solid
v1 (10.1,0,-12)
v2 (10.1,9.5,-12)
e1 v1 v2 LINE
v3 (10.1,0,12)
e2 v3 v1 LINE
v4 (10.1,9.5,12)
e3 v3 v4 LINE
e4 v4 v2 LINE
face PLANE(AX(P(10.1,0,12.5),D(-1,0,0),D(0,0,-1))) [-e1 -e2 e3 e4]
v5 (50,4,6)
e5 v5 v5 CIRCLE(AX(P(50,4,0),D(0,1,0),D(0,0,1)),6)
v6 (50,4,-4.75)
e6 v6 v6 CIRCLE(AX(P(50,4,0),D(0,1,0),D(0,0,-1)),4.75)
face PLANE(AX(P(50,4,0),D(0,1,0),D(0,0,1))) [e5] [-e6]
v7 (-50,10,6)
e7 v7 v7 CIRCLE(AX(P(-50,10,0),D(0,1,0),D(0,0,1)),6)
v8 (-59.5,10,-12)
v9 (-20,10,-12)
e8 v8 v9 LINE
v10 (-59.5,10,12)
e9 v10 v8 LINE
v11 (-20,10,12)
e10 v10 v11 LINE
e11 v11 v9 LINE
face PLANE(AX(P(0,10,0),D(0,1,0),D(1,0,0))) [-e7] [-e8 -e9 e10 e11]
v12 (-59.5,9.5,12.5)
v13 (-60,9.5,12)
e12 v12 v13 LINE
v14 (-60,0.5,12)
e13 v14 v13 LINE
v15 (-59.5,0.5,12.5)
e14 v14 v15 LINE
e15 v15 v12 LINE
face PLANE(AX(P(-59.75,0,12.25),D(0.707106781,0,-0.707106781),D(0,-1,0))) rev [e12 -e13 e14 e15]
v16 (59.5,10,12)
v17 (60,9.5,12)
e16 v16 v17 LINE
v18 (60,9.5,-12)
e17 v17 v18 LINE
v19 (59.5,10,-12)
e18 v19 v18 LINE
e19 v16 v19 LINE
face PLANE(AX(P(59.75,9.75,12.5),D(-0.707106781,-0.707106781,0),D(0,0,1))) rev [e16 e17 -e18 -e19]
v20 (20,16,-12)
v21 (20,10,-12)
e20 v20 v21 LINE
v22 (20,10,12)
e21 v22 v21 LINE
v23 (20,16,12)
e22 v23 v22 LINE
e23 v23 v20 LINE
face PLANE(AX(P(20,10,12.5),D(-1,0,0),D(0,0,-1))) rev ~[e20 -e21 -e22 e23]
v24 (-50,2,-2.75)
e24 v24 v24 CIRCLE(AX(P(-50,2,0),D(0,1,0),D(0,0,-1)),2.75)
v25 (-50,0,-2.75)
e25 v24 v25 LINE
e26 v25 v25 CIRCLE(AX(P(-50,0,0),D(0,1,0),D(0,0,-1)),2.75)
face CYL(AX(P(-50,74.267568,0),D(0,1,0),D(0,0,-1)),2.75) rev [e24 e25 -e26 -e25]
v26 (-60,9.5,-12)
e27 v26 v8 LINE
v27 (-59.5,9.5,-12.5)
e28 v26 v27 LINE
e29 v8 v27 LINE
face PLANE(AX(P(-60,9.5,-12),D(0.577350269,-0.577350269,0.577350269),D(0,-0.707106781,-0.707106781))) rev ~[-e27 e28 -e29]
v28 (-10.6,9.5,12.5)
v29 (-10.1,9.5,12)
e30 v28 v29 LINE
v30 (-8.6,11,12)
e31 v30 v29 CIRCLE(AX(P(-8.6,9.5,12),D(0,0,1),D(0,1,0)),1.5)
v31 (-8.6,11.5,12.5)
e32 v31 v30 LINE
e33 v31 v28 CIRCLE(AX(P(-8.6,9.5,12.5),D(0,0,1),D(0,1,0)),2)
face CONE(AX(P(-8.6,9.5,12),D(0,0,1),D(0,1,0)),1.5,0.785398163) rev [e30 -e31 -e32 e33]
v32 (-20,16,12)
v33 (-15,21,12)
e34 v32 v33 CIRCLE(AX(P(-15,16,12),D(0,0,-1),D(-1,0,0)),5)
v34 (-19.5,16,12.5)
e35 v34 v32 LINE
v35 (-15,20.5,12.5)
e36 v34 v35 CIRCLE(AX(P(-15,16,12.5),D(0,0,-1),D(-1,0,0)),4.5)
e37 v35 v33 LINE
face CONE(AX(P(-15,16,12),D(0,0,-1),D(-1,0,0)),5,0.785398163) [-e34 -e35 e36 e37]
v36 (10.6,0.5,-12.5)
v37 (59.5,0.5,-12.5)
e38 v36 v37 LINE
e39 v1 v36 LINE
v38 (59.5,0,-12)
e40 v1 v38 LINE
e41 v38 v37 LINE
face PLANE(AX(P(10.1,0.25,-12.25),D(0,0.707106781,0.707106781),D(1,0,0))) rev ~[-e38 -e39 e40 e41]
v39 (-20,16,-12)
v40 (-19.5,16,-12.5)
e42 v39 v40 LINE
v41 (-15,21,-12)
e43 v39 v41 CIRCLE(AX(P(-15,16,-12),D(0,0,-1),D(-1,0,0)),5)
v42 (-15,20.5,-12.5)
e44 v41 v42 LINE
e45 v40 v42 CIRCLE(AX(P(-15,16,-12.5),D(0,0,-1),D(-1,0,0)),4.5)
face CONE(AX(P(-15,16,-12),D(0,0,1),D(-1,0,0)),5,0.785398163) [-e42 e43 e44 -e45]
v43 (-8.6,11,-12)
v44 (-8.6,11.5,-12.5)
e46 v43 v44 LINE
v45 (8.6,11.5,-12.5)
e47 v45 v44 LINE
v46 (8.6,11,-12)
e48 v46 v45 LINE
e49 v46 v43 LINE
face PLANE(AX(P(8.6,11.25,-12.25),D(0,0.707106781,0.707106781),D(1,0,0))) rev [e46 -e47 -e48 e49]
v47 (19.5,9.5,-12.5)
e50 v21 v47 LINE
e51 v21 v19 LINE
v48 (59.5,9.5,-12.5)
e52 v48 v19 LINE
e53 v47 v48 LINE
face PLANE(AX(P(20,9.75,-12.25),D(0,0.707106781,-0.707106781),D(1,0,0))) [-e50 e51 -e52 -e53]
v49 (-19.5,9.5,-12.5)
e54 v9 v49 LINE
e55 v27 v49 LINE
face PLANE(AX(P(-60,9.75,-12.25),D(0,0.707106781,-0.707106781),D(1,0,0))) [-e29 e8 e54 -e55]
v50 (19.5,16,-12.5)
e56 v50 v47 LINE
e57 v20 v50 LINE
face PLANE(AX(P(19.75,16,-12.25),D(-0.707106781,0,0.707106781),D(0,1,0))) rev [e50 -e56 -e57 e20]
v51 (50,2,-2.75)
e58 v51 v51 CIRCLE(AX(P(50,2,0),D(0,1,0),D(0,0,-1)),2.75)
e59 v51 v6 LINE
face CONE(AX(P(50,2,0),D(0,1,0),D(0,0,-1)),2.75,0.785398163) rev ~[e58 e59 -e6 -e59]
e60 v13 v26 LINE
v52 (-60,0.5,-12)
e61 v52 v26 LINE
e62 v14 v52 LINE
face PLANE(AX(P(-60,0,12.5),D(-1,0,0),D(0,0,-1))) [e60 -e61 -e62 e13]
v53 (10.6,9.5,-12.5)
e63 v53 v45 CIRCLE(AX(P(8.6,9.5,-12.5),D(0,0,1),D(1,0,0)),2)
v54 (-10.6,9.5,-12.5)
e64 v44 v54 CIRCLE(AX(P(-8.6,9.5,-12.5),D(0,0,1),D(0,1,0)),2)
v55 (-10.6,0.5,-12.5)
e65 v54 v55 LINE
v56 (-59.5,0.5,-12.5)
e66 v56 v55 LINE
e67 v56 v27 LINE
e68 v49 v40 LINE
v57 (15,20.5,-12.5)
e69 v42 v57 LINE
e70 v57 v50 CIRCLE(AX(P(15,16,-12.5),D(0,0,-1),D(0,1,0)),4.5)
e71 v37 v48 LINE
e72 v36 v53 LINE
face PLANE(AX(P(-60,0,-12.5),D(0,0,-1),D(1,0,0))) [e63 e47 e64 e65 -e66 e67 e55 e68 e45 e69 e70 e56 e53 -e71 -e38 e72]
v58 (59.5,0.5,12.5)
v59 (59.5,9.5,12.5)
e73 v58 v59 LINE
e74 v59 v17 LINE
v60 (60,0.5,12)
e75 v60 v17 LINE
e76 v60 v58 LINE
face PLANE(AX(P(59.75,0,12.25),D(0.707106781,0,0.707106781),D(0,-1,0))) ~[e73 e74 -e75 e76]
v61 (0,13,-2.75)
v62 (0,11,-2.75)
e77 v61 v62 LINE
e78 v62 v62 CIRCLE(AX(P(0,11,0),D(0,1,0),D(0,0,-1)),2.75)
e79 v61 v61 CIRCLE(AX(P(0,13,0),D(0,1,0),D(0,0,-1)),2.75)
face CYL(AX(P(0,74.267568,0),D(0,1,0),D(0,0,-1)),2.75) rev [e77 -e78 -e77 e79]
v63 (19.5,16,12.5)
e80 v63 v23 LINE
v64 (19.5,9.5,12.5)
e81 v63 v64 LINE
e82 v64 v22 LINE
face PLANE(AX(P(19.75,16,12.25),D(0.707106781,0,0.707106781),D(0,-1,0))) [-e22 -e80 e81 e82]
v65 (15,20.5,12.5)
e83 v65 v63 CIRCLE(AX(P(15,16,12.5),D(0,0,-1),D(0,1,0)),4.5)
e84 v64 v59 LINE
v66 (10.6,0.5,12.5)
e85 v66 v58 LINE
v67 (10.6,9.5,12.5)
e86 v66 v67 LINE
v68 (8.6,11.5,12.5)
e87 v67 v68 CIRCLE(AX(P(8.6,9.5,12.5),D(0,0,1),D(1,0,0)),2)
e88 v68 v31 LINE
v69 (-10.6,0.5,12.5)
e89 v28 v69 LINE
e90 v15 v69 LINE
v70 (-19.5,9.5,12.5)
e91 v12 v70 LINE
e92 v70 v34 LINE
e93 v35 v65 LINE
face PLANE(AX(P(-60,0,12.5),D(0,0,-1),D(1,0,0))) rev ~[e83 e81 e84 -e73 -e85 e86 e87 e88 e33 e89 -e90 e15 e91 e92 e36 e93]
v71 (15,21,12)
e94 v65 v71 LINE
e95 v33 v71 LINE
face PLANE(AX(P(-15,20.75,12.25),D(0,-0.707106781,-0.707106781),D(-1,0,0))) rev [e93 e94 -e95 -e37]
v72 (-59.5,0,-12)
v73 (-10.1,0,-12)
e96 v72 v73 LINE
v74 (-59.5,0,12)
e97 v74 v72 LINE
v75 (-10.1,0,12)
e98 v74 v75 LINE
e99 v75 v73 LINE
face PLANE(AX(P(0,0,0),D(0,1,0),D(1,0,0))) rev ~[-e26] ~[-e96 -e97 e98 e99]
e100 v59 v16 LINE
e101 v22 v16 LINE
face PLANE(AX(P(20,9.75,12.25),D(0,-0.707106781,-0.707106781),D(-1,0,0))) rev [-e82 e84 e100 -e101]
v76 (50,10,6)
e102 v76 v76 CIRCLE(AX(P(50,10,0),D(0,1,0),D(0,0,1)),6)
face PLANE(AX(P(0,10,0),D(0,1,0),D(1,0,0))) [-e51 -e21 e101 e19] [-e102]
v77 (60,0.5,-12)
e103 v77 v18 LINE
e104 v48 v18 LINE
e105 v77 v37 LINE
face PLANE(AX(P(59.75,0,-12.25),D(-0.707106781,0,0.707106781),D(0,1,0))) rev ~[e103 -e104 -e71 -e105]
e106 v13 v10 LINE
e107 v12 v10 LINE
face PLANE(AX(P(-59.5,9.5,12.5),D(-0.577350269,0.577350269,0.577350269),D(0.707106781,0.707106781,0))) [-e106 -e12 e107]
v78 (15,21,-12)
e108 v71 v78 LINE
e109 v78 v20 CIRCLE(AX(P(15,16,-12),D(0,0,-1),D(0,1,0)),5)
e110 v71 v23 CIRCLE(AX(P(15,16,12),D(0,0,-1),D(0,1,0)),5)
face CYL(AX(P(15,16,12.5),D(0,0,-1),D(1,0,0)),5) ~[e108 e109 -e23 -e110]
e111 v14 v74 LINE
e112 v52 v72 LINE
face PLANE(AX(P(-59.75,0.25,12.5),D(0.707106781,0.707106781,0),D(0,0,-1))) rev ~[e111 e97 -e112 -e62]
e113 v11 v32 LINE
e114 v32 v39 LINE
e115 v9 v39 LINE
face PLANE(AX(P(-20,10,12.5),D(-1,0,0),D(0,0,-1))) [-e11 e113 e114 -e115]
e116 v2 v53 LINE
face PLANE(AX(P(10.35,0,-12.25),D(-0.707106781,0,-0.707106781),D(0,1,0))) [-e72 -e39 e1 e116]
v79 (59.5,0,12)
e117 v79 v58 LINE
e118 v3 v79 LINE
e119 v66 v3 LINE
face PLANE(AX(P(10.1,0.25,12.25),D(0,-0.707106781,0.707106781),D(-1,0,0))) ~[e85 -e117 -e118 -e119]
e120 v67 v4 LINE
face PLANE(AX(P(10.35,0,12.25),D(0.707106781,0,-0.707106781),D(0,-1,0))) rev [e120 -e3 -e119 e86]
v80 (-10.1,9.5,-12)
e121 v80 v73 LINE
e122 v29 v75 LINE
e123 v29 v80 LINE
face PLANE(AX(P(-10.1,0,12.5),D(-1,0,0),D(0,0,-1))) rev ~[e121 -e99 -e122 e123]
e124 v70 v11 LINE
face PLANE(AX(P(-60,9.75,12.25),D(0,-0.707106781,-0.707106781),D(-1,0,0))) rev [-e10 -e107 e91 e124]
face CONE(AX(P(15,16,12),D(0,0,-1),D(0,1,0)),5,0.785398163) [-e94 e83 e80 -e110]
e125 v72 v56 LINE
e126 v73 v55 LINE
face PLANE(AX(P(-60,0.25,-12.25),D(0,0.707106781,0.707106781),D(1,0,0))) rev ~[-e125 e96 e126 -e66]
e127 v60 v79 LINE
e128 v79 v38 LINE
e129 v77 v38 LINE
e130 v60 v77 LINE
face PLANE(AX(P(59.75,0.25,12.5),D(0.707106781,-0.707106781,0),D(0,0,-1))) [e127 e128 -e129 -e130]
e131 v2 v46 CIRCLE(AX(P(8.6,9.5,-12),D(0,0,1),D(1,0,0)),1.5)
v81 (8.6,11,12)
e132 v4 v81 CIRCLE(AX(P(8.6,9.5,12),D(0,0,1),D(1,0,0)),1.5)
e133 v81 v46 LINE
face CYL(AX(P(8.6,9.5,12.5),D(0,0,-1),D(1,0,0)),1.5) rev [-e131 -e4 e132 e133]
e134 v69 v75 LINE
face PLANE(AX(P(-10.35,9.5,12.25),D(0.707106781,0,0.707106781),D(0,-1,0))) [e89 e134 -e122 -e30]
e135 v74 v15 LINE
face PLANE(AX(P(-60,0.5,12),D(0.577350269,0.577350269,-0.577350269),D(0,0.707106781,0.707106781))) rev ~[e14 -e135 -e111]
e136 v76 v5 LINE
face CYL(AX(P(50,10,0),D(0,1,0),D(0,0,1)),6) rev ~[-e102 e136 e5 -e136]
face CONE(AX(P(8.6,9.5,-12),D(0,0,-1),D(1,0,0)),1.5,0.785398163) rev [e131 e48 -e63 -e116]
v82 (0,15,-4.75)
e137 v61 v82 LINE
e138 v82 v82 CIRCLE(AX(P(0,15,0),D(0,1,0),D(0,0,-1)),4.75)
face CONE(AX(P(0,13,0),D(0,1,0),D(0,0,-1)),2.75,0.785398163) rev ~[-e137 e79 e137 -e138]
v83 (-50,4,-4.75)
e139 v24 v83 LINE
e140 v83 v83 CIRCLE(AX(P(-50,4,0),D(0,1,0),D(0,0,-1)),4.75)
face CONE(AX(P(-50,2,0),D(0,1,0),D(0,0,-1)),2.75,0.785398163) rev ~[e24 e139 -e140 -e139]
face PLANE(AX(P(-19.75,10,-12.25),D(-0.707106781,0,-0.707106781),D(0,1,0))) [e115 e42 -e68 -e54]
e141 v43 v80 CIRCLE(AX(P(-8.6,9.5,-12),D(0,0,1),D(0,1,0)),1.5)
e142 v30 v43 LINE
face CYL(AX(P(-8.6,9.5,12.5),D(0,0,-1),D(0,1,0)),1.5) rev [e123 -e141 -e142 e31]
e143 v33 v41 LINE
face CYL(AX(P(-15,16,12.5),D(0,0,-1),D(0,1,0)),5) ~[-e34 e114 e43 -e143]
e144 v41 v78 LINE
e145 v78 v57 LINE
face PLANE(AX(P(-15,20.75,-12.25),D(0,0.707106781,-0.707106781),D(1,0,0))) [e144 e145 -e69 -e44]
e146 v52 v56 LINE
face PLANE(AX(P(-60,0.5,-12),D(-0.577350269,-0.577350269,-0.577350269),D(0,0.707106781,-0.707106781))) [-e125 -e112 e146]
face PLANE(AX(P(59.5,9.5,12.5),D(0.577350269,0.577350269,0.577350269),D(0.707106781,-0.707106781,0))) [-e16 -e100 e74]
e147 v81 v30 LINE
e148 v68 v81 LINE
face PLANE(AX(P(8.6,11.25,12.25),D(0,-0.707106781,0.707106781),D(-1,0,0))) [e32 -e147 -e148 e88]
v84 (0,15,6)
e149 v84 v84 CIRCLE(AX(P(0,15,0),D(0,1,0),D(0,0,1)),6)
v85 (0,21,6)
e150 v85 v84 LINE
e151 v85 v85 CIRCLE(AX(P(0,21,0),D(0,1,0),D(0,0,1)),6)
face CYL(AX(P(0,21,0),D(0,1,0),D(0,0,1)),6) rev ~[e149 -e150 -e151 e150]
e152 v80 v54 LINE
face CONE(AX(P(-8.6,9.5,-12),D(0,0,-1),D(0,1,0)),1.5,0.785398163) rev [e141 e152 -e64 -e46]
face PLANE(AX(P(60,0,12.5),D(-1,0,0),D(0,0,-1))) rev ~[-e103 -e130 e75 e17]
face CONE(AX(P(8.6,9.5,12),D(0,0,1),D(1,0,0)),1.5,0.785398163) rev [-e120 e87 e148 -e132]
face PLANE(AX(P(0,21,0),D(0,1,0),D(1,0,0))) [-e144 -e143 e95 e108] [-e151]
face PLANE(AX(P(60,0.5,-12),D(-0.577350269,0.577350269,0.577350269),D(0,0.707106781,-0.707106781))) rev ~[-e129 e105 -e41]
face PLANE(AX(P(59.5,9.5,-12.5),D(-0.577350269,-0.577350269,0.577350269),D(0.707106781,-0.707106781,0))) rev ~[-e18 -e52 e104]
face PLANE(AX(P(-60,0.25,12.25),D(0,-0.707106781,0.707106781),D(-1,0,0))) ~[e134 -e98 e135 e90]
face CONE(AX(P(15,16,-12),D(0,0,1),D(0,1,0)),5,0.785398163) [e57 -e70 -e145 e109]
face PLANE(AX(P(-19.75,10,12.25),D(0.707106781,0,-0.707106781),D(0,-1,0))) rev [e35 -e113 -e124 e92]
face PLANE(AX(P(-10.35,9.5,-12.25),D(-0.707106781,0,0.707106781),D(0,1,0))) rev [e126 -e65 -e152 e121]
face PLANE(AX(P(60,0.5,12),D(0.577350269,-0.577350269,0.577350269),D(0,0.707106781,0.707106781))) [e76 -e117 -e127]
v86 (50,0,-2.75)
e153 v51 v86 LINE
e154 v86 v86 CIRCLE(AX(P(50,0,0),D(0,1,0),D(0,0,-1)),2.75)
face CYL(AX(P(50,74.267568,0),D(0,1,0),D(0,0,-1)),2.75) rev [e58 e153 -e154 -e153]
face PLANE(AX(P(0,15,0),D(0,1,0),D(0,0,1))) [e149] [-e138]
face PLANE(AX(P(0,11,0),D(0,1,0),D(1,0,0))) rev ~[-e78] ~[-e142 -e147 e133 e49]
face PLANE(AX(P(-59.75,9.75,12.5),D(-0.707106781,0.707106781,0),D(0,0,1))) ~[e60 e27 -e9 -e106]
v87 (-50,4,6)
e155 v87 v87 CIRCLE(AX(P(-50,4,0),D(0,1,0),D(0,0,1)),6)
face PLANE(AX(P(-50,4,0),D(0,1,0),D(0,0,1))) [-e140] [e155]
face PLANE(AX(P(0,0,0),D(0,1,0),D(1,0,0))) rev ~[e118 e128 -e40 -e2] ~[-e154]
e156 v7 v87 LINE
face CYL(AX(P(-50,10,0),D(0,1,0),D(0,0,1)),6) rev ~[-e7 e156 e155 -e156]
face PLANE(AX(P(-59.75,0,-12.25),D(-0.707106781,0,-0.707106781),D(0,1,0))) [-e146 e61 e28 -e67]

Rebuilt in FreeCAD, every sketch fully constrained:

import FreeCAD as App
import Part
import Sketcher
from FreeCAD import Vector


def edges_at(feature, points):
    """Names of the edges that pass closest to the given points."""
    edges = feature.Shape.Edges
    near = lambda p: min(range(len(edges)), key=lambda i: edges[i].distToShape(Part.Vertex(*p))[0])
    return sorted({f"Edge{near(p) + 1}" for p in points})

doc = App.newDocument("Part")
params = doc.addObject("Spreadsheet::Sheet", "Params")
for row, (alias, value) in enumerate([
    ("sketch1_width", "120 mm"),
    ("sketch1_height", "25 mm"),
    ("pad1_length", "10 mm"),
    ("sketch2_width", "40 mm"),
    ("sketch2_height", "25 mm"),
    ("pad2_length", "11 mm"),
    ("sketch3_height", "25 mm"),
    ("sketch3_width", "20.2 mm"),
    ("pocket1_length", "11 mm"),
    ("sketch4_diameter", "5.5 mm"),
    ("fillet_radius", "5 mm"),
    ("fillet2_radius", "1.5 mm"),
    ("chamfer_size", "0.5 mm"),
    ("sketch5_diameter", "12 mm"),
    ("pocket3_length", "6 mm"),
    ("chamfer2_size", "2 mm"),
    ("sketch6_diameter", "12 mm"),
    ("pocket4_length", "6 mm"),
    ("chamfer3_size", "2 mm"),
], start=1):
    params.set(f"A{row}", alias)
    params.set(f"B{row}", "=" + value)
    params.setAlias(f"B{row}", alias)

body = doc.addObject("PartDesign::Body", "Body")

sketch1 = body.newObject("Sketcher::SketchObject", "Sketch")
sketch1.AttachmentSupport = (doc.getObject("XZ_Plane"), [""])
sketch1.MapMode = "FlatFace"
sketch1.addGeometry([
    Part.LineSegment(Vector(-60, -12, 0), Vector(-60, 12, 0)),
    Part.LineSegment(Vector(-60, 12, 0), Vector(60, 12, 0)),
    Part.LineSegment(Vector(60, 12, 0), Vector(60, -12, 0)),
    Part.LineSegment(Vector(60, -12, 0), Vector(-60, -12, 0)),
], False)
sketch1.addConstraint([
    Sketcher.Constraint("Coincident", 0, 2, 1, 1),
    Sketcher.Constraint("Coincident", 1, 2, 2, 1),
    Sketcher.Constraint("Coincident", 2, 2, 3, 1),
    Sketcher.Constraint("Coincident", 3, 2, 0, 1),
    Sketcher.Constraint("Vertical", 0),
    Sketcher.Constraint("Horizontal", 1),
    Sketcher.Constraint("Vertical", 2),
    Sketcher.Constraint("Horizontal", 3),
    Sketcher.Constraint("Symmetric", 0, 2, 2, 2, -1, 1),
    Sketcher.Constraint("DistanceX", 1, 1, 1, 2, 120.0),
    Sketcher.Constraint("DistanceY", 0, 1, 0, 2, 25.0),
])
sketch1.setExpression("Constraints[9]", "Params.sketch1_width")
sketch1.setExpression("Constraints[10]", "Params.sketch1_height")
pad1 = body.newObject("PartDesign::Pad", "Pad")
pad1.Profile = sketch1
pad1.setExpression("Length", "Params.pad1_length")
pad1.Reversed = True

sketch2 = body.newObject("Sketcher::SketchObject", "Sketch001")
sketch2.AttachmentSupport = (doc.getObject("XZ_Plane"), [""])
sketch2.MapMode = "FlatFace"
sketch2.AttachmentOffset = App.Placement(Vector(0, 0, -10), App.Rotation())
sketch2.addGeometry([
    Part.LineSegment(Vector(-20, -12, 0), Vector(-20, 12, 0)),
    Part.LineSegment(Vector(-20, 12, 0), Vector(20, 12, 0)),
    Part.LineSegment(Vector(20, 12, 0), Vector(20, -12, 0)),
    Part.LineSegment(Vector(20, -12, 0), Vector(-20, -12, 0)),
], False)
sketch2.addConstraint([
    Sketcher.Constraint("Coincident", 0, 2, 1, 1),
    Sketcher.Constraint("Coincident", 1, 2, 2, 1),
    Sketcher.Constraint("Coincident", 2, 2, 3, 1),
    Sketcher.Constraint("Coincident", 3, 2, 0, 1),
    Sketcher.Constraint("Vertical", 0),
    Sketcher.Constraint("Horizontal", 1),
    Sketcher.Constraint("Vertical", 2),
    Sketcher.Constraint("Horizontal", 3),
    Sketcher.Constraint("Symmetric", 0, 2, 2, 2, -1, 1),
    Sketcher.Constraint("DistanceX", 1, 1, 1, 2, 40.0),
    Sketcher.Constraint("DistanceY", 0, 1, 0, 2, 25.0),
])
sketch2.setExpression("Constraints[9]", "Params.sketch2_width")
sketch2.setExpression("Constraints[10]", "Params.sketch2_height")
pad2 = body.newObject("PartDesign::Pad", "Pad001")
pad2.Profile = sketch2
pad2.setExpression("Length", "Params.pad2_length")
pad2.Reversed = True

sketch3 = body.newObject("Sketcher::SketchObject", "Sketch002")
sketch3.AttachmentSupport = (doc.getObject("XZ_Plane"), [""])
sketch3.MapMode = "FlatFace"
sketch3.addGeometry([
    Part.LineSegment(Vector(-10, -12, 0), Vector(-10, 12, 0)),
    Part.LineSegment(Vector(-10, 12, 0), Vector(10, 12, 0)),
    Part.LineSegment(Vector(10, 12, 0), Vector(10, -12, 0)),
    Part.LineSegment(Vector(10, -12, 0), Vector(-10, -12, 0)),
], False)
sketch3.addConstraint([
    Sketcher.Constraint("Coincident", 0, 2, 1, 1),
    Sketcher.Constraint("Coincident", 1, 2, 2, 1),
    Sketcher.Constraint("Coincident", 2, 2, 3, 1),
    Sketcher.Constraint("Coincident", 3, 2, 0, 1),
    Sketcher.Constraint("Vertical", 0),
    Sketcher.Constraint("Horizontal", 1),
    Sketcher.Constraint("Vertical", 2),
    Sketcher.Constraint("Horizontal", 3),
    Sketcher.Constraint("Symmetric", 0, 2, 2, 2, -1, 1),
    Sketcher.Constraint("DistanceY", 0, 1, 0, 2, 25.0),
    Sketcher.Constraint("DistanceX", 1, 1, 1, 2, 20.2),
])
sketch3.setExpression("Constraints[9]", "Params.sketch3_height")
sketch3.setExpression("Constraints[10]", "Params.sketch3_width")
pocket1 = body.newObject("PartDesign::Pocket", "Pocket")
pocket1.Profile = sketch3
pocket1.setExpression("Length", "Params.pocket1_length")

sketch4 = body.newObject("Sketcher::SketchObject", "Sketch003")
sketch4.AttachmentSupport = (doc.getObject("XZ_Plane"), [""])
sketch4.MapMode = "FlatFace"
sketch4.AttachmentOffset = App.Placement(Vector(0, 0, -11), App.Rotation())
sketch4.addGeometry([
    Part.Circle(Vector(0, 0, 0), Vector(0, 0, 1), 2.8),
    Part.Circle(Vector(-50, 0, 0), Vector(0, 0, 1), 2.8),
    Part.Circle(Vector(50, 0, 0), Vector(0, 0, 1), 2.8),
], False)
sketch4.addConstraint([
    Sketcher.Constraint("Coincident", 0, 3, -1, 1),
    Sketcher.Constraint("Equal", 0, 1),
    Sketcher.Constraint("Equal", 1, 2),
    Sketcher.Constraint("Symmetric", 1, 3, 2, 3, -1, 1),
    Sketcher.Constraint("PointOnObject", 1, 3, -1),
    Sketcher.Constraint("Diameter", 0, 5.5),
    Sketcher.Constraint("DistanceX", 1, 3, -1, 1, 50.0),
])
sketch4.setExpression("Constraints[5]", "Params.sketch4_diameter")
pocket2 = body.newObject("PartDesign::Pocket", "Pocket001")
pocket2.Profile = sketch4
pocket2.Type = "ThroughAll"
pocket2.Midplane = True
doc.recompute()

fillet = body.newObject("PartDesign::Fillet", "Fillet")
fillet.Base = (pocket2, edges_at(pocket2, [(-20, 21, 0), (20, 21, 0)]))
fillet.setExpression("Radius", "Params.fillet_radius")
doc.recompute()

fillet2 = body.newObject("PartDesign::Fillet", "Fillet001")
fillet2.Base = (fillet, edges_at(fillet, [(-10.1, 11, 0), (10.1, 11, 0)]))
fillet2.setExpression("Radius", "Params.fillet2_radius")
doc.recompute()

chamfer = body.newObject("PartDesign::Chamfer", "Chamfer")
chamfer.Base = (fillet2, edges_at(fillet2, [
    (60, 10, 0),
    (40, 10, 12.5),
    (-40, 10, -12.5),
    (40, 10, -12.5),
    (-35.05, 0, -12.5),
    (35.05, 0, 12.5),
    (-60, 10, 0),
    (35.05, 0, -12.5),
    (60, 0, 0),
    (-35.05, 0, 12.5),
    (0, 21, 12.5),
    (0, 21, -12.5),
    (20, 13, 12.5),
    (-20, 13, 12.5),
    (18.536, 19.536, 12.5),
    (-60, 0, 0),
    (-18.536, 19.536, 12.5),
    (-20, 13, -12.5),
    (20, 13, -12.5),
    (18.536, 19.536, -12.5),
    (-18.536, 19.536, -12.5),
    (10.1, 4.75, 12.5),
    (10.1, 4.75, -12.5),
    (0, 11, -12.5),
    (0, 11, 12.5),
    (-10.1, 4.75, -12.5),
    (-10.1, 4.75, 12.5),
    (9.661, 10.561, -12.5),
    (9.661, 10.561, 12.5),
    (-9.661, 10.561, 12.5),
    (-9.661, 10.561, -12.5),
    (-60, 5, -12.5),
    (60, 5, -12.5),
    (60, 5, 12.5),
    (-60, 5, 12.5),
    (-40, 10, 12.5),
]))
chamfer.setExpression("Size", "Params.chamfer_size")

sketch5 = body.newObject("Sketcher::SketchObject", "Sketch004")
sketch5.AttachmentSupport = (doc.getObject("XZ_Plane"), [""])
sketch5.MapMode = "FlatFace"
sketch5.AttachmentOffset = App.Placement(Vector(0, 0, -10), App.Rotation())
sketch5.addGeometry([
    Part.Circle(Vector(-50, 0, 0), Vector(0, 0, 1), 6),
    Part.Circle(Vector(50, 0, 0), Vector(0, 0, 1), 6),
], False)
sketch5.addConstraint([
    Sketcher.Constraint("Equal", 0, 1),
    Sketcher.Constraint("Symmetric", 0, 3, 1, 3, -1, 1),
    Sketcher.Constraint("PointOnObject", 0, 3, -1),
    Sketcher.Constraint("Diameter", 0, 12.0),
    Sketcher.Constraint("DistanceX", 0, 3, -1, 1, 50.0),
])
sketch5.setExpression("Constraints[3]", "Params.sketch5_diameter")
pocket3 = body.newObject("PartDesign::Pocket", "Pocket002")
pocket3.Profile = sketch5
pocket3.setExpression("Length", "Params.pocket3_length")
pocket3.Reversed = True
doc.recompute()

chamfer2 = body.newObject("PartDesign::Chamfer", "Chamfer001")
chamfer2.Base = (pocket3, edges_at(pocket3, [(-50, 4, 2.75), (50, 4, 2.75)]))
chamfer2.setExpression("Size", "Params.chamfer2_size")

sketch6 = body.newObject("Sketcher::SketchObject", "Sketch005")
sketch6.AttachmentSupport = (doc.getObject("XZ_Plane"), [""])
sketch6.MapMode = "FlatFace"
sketch6.AttachmentOffset = App.Placement(Vector(0, 0, -21), App.Rotation())
sketch6.addGeometry(Part.Circle(Vector(0, 0, 0), Vector(0, 0, 1), 6), False)
sketch6.addConstraint([
    Sketcher.Constraint("Coincident", 0, 3, -1, 1),
    Sketcher.Constraint("Diameter", 0, 12.0),
])
sketch6.setExpression("Constraints[1]", "Params.sketch6_diameter")
pocket4 = body.newObject("PartDesign::Pocket", "Pocket003")
pocket4.Profile = sketch6
pocket4.setExpression("Length", "Params.pocket4_length")
pocket4.Reversed = True
doc.recompute()

chamfer3 = body.newObject("PartDesign::Chamfer", "Chamfer002")
chamfer3.Base = (pocket4, edges_at(pocket4, [(0, 15, 2.75)]))
chamfer3.setExpression("Size", "Params.chamfer3_size")

doc.recompute()
